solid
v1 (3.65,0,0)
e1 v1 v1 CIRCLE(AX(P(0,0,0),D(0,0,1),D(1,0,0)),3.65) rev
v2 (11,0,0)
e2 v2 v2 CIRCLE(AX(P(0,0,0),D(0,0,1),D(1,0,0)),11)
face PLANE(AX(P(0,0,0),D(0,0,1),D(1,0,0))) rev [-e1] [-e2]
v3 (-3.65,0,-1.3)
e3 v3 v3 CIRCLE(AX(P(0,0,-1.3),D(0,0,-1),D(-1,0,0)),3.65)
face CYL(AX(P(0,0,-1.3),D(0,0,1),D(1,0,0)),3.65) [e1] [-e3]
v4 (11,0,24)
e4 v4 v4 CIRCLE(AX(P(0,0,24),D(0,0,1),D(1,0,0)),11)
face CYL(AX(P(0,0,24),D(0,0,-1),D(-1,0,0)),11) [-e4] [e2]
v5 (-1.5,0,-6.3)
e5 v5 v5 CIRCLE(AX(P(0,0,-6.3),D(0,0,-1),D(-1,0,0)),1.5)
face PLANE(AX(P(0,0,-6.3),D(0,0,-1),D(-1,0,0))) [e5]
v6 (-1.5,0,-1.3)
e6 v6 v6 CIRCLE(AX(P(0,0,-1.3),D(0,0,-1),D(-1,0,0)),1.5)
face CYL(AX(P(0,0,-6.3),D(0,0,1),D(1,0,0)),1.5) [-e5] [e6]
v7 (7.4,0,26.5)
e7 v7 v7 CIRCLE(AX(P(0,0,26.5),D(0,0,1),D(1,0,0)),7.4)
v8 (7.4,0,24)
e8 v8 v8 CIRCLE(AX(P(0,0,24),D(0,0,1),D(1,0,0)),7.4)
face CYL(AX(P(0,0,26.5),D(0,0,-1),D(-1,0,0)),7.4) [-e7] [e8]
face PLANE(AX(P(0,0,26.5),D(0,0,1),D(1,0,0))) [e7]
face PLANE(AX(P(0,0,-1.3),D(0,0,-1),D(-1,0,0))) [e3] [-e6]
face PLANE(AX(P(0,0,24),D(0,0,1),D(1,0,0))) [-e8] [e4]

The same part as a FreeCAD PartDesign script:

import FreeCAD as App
import Part
import Sketcher
Q = App.Units.Quantity

doc = App.newDocument("Part")
body = doc.addObject("PartDesign::Body", "Body")

# Sketch on XY plane
sketch1 = doc.addObject("Sketcher::SketchObject", "Sketch")
body.addObject(sketch1)
sketch1.AttachmentSupport = (doc.XY_Plane, [""])
sketch1.MapMode = "FlatFace"
sketch1.addGeometry(Part.Circle(App.Vector(0, 0, 0), App.Vector(0, 0, 1), 11), False)
sketch1.addConstraint([
    Sketcher.Constraint("Coincident", 0, 3, -1, 1),
    Sketcher.Constraint("Diameter", 0, Q("22 mm")),
])
pad1 = doc.addObject("PartDesign::Pad", "Pad")
body.addObject(pad1)
pad1.Profile = sketch1
pad1.Length = 24

# Sketch on XY plane
sketch2 = doc.addObject("Sketcher::SketchObject", "Sketch001")
body.addObject(sketch2)
sketch2.AttachmentSupport = (doc.XY_Plane, [""])
sketch2.MapMode = "FlatFace"
sketch2.AttachmentOffset = App.Placement(App.Vector(0, 0, 24), App.Rotation())
sketch2.addGeometry(Part.Circle(App.Vector(0, 0, 0), App.Vector(0, 0, 1), 7.4), False)
sketch2.addConstraint([
    Sketcher.Constraint("Coincident", 0, 3, -1, 1),
    Sketcher.Constraint("Diameter", 0, Q("14.8 mm")),
])
pad2 = doc.addObject("PartDesign::Pad", "Pad001")
body.addObject(pad2)
pad2.Profile = sketch2
pad2.Length = 2.5

# Sketch on XY plane
sketch3 = doc.addObject("Sketcher::SketchObject", "Sketch002")
body.addObject(sketch3)
sketch3.AttachmentSupport = (doc.XY_Plane, [""])
sketch3.MapMode = "FlatFace"
sketch3.addGeometry(Part.Circle(App.Vector(0, 0, 0), App.Vector(0, 0, 1), 3.65), False)
sketch3.addConstraint([
    Sketcher.Constraint("Coincident", 0, 3, -1, 1),
    Sketcher.Constraint("Diameter", 0, Q("7.3 mm")),
])
pad3 = doc.addObject("PartDesign::Pad", "Pad002")
body.addObject(pad3)
pad3.Profile = sketch3
pad3.Length = 1.3
pad3.Reversed = True

# Sketch on XY plane
sketch4 = doc.addObject("Sketcher::SketchObject", "Sketch003")
body.addObject(sketch4)
sketch4.AttachmentSupport = (doc.XY_Plane, [""])
sketch4.MapMode = "FlatFace"
sketch4.AttachmentOffset = App.Placement(App.Vector(0, 0, -1.3), App.Rotation())
sketch4.addGeometry(Part.Circle(App.Vector(0, 0, 0), App.Vector(0, 0, 1), 1.5), False)
sketch4.addConstraint([
    Sketcher.Constraint("Coincident", 0, 3, -1, 1),
    Sketcher.Constraint("Diameter", 0, Q("3 mm")),
])
pad4 = doc.addObject("PartDesign::Pad", "Pad003")
body.addObject(pad4)
pad4.Profile = sketch4
pad4.Length = 5
pad4.Reversed = True

doc.recompute()
